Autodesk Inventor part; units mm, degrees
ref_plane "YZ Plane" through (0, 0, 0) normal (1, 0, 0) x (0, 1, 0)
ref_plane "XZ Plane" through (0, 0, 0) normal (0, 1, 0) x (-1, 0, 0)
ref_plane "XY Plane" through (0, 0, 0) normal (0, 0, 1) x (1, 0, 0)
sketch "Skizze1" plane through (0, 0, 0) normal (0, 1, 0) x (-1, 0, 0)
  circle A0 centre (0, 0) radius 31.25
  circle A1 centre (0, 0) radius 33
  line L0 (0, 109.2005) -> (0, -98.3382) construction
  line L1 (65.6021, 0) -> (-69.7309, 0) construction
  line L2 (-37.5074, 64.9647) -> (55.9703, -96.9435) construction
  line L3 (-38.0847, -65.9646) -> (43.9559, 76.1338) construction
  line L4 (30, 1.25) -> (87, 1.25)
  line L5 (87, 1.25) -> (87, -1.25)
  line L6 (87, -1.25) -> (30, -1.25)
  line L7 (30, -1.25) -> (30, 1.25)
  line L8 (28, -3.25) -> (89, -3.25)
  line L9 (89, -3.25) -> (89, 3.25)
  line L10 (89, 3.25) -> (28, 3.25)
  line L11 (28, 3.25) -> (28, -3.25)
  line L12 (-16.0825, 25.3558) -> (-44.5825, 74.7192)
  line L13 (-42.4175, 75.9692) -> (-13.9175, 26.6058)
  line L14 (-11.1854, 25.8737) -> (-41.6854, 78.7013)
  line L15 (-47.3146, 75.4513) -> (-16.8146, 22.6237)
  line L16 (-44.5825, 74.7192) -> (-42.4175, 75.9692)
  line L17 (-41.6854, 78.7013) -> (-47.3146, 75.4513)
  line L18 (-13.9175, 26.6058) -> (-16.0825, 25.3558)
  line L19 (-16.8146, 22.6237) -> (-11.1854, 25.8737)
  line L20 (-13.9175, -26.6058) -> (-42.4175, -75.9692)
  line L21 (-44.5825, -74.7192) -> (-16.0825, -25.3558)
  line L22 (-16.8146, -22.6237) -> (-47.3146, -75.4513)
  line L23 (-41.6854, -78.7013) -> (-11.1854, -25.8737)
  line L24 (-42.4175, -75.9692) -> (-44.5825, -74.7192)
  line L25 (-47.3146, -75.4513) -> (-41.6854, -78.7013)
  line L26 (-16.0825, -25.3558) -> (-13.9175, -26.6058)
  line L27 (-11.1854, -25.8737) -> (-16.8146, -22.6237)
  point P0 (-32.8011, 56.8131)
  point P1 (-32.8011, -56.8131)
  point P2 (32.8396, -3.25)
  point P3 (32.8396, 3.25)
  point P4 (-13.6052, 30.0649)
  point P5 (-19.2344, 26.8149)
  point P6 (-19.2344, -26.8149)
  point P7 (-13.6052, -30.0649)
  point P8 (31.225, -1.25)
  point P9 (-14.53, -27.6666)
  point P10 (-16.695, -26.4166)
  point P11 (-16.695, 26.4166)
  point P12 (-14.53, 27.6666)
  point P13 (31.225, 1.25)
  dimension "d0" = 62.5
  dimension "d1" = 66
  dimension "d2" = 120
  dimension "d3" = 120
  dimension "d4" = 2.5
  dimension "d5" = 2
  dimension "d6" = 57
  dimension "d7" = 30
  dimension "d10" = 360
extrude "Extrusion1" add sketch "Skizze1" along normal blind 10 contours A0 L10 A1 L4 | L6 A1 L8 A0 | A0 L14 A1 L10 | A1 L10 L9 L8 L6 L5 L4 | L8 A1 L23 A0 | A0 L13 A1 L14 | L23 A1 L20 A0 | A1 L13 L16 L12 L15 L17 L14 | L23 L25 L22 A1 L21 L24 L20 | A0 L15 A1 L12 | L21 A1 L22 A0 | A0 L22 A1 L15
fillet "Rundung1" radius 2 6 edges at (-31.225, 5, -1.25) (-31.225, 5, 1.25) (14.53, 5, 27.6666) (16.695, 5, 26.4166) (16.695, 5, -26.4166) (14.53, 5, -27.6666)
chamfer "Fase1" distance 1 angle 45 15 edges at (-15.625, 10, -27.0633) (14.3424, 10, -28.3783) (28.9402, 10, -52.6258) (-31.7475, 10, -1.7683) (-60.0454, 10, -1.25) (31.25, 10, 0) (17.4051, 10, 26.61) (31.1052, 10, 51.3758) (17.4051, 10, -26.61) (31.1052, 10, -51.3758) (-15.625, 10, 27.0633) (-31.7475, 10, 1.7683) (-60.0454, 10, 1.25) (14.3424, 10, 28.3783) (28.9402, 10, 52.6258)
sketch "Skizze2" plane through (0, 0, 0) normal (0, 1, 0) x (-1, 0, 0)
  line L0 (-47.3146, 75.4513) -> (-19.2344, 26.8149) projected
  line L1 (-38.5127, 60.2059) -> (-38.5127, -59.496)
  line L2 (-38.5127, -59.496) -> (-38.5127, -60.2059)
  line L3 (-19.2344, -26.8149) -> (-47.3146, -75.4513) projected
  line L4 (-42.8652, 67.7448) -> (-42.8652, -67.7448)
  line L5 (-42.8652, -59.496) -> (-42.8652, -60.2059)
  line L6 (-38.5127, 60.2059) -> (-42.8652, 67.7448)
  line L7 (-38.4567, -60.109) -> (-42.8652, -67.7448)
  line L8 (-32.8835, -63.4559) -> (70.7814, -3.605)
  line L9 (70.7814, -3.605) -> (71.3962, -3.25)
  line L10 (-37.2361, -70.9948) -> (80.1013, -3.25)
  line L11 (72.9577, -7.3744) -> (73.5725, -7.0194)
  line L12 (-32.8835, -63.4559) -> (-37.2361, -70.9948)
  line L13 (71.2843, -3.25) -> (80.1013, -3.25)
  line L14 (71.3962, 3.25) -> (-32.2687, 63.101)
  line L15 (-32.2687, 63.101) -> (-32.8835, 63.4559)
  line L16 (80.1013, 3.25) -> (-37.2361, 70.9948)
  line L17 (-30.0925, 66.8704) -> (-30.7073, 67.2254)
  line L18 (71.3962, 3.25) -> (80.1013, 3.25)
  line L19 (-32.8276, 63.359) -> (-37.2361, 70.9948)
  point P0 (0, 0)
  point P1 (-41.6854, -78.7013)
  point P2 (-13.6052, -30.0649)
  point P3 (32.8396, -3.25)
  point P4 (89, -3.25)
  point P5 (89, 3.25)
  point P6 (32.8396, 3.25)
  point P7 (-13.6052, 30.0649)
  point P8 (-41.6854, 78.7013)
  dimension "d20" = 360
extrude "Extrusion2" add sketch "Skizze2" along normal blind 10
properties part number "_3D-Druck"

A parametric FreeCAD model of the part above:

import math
import FreeCAD as App
import Part
import Sketcher
Q = App.Units.Quantity


def edges_at(feature, points):
    """Names of the edges that pass closest to the given points."""
    edges = feature.Shape.Edges
    near = lambda p: min(range(len(edges)), key=lambda i: edges[i].distToShape(Part.Vertex(*p))[0])
    return sorted({f"Edge{near(p) + 1}" for p in points})


def add_polygon(sketch, points):
    """Adds a closed chain of lines whose ends are joined by coincident constraints."""
    first, n = sketch.GeometryCount, len(points)
    for a, b in zip(points, points[1:] + points[:1]):
        sketch.addGeometry(Part.LineSegment(App.Vector(*a, 0), App.Vector(*b, 0)), False)
    for i in range(n):
        sketch.addConstraint(Sketcher.Constraint("Coincident", first + i, 2, first + (i + 1) % n, 1))

doc = App.newDocument("Part")
body = doc.addObject("PartDesign::Body", "Body")

# Sketch on XZ plane
sketch1 = doc.addObject("Sketcher::SketchObject", "Sketch")
body.addObject(sketch1)
sketch1.AttachmentSupport = (doc.XZ_Plane, [""])
sketch1.MapMode = "FlatFace"
sketch1.addGeometry([
    Part.ArcOfCircle(Part.Circle(App.Vector(0, 0, 0), App.Vector(0, 0, 1), 33), math.radians(66), math.radians(174)),  # 0
    Part.LineSegment(App.Vector(13.6, 30.1, 0), App.Vector(41.7, 78.7, 0)),  # 1
    Part.LineSegment(App.Vector(41.7, 78.7, 0), App.Vector(47.3, 75.5, 0)),  # 2
    Part.LineSegment(App.Vector(47.3, 75.5, 0), App.Vector(19.2, 26.8, 0)),  # 3
    Part.ArcOfCircle(Part.Circle(App.Vector(0, 0, 0), App.Vector(0, 0, 1), 33), math.radians(-54), math.radians(54)),  # 4
    Part.LineSegment(App.Vector(19.2, -26.8, 0), App.Vector(47.3, -75.5, 0)),  # 5
    Part.LineSegment(App.Vector(47.3, -75.5, 0), App.Vector(41.7, -78.7, 0)),  # 6
    Part.LineSegment(App.Vector(41.7, -78.7, 0), App.Vector(13.6, -30.1, 0)),  # 7
    Part.ArcOfCircle(Part.Circle(App.Vector(0, 0, 0), App.Vector(0, 0, 1), 33), math.radians(-174), math.radians(-66)),  # 8
    Part.LineSegment(App.Vector(-32.8, -3.2, 0), App.Vector(-89, -3.2, 0)),  # 9
    Part.LineSegment(App.Vector(-89, -3.2, 0), App.Vector(-89, 3.2, 0)),  # 10
    Part.LineSegment(App.Vector(-89, 3.2, 0), App.Vector(-32.8, 3.2, 0)),  # 11
    Part.LineSegment(App.Vector(-31.2, 1.2, 0), App.Vector(-87, 1.2, 0)),  # 12
    Part.LineSegment(App.Vector(-87, 1.2, 0), App.Vector(-87, -1.2, 0)),  # 13
    Part.LineSegment(App.Vector(-87, -1.2, 0), App.Vector(-31.2, -1.2, 0)),  # 14
    Part.ArcOfCircle(Part.Circle(App.Vector(0, 0, 0), App.Vector(0, 0, 1), 31.2), math.radians(-178), math.radians(-62)),  # 15
    Part.LineSegment(App.Vector(14.5, -27.7, 0), App.Vector(42.4, -76, 0)),  # 16
    Part.LineSegment(App.Vector(42.4, -76, 0), App.Vector(44.6, -74.7, 0)),  # 17
    Part.LineSegment(App.Vector(44.6, -74.7, 0), App.Vector(16.7, -26.4, 0)),  # 18
    Part.ArcOfCircle(Part.Circle(App.Vector(0, 0, 0), App.Vector(0, 0, 1), 31.2), math.radians(-58), math.radians(58)),  # 19
    Part.LineSegment(App.Vector(16.7, 26.4, 0), App.Vector(44.6, 74.7, 0)),  # 20
    Part.LineSegment(App.Vector(44.6, 74.7, 0), App.Vector(42.4, 76, 0)),  # 21
    Part.LineSegment(App.Vector(42.4, 76, 0), App.Vector(14.5, 27.7, 0)),  # 22
    Part.ArcOfCircle(Part.Circle(App.Vector(0, 0, 0), App.Vector(0, 0, 1), 31.2), math.radians(62), math.radians(178)),  # 23
], False)
sketch1.addConstraint([
    Sketcher.Constraint("Coincident", 0, 1, 1, 1),
    Sketcher.Constraint("Coincident", 1, 2, 2, 1),
    Sketcher.Constraint("Coincident", 2, 2, 3, 1),
    Sketcher.Constraint("Coincident", 3, 2, 4, 2),
    Sketcher.Constraint("Coincident", 4, 1, 5, 1),
    Sketcher.Constraint("Coincident", 5, 2, 6, 1),
    Sketcher.Constraint("Coincident", 6, 2, 7, 1),
    Sketcher.Constraint("Coincident", 7, 2, 8, 2),
    Sketcher.Constraint("Coincident", 8, 1, 9, 1),
    Sketcher.Constraint("Coincident", 9, 2, 10, 1),
    Sketcher.Constraint("Coincident", 10, 2, 11, 1),
    Sketcher.Constraint("Coincident", 11, 2, 0, 2),
    Sketcher.Constraint("Coincident", 12, 2, 13, 1),
    Sketcher.Constraint("Coincident", 13, 2, 14, 1),
    Sketcher.Constraint("Coincident", 14, 2, 15, 1),
    Sketcher.Constraint("Coincident", 15, 2, 16, 1),
    Sketcher.Constraint("Coincident", 16, 2, 17, 1),
    Sketcher.Constraint("Coincident", 17, 2, 18, 1),
    Sketcher.Constraint("Coincident", 18, 2, 19, 1),
    Sketcher.Constraint("Coincident", 19, 2, 20, 1),
    Sketcher.Constraint("Coincident", 20, 2, 21, 1),
    Sketcher.Constraint("Coincident", 21, 2, 22, 1),
    Sketcher.Constraint("Coincident", 22, 2, 23, 1),
    Sketcher.Constraint("Coincident", 23, 2, 12, 1),
    Sketcher.Constraint("Horizontal", 9),
    Sketcher.Constraint("Vertical", 10),
    Sketcher.Constraint("Horizontal", 11),
    Sketcher.Constraint("Horizontal", 12),
    Sketcher.Constraint("Vertical", 13),
    Sketcher.Constraint("Horizontal", 14),
    Sketcher.Constraint("Coincident", 0, 3, -1, 1),
    Sketcher.Constraint("Coincident", 4, 3, -1, 1),
    Sketcher.Constraint("Coincident", 8, 3, -1, 1),
    Sketcher.Constraint("Coincident", 15, 3, -1, 1),
    Sketcher.Constraint("Coincident", 19, 3, -1, 1),
    Sketcher.Constraint("Coincident", 23, 3, -1, 1),
    Sketcher.Constraint("Equal", 0, 4),
    Sketcher.Constraint("Equal", 4, 8),
    Sketcher.Constraint("Equal", 15, 19),
    Sketcher.Constraint("Equal", 19, 23),
    Sketcher.Constraint("Symmetric", 2, 2, 5, 2, -1),
    Sketcher.Constraint("Symmetric", 1, 2, 6, 2, -1),
    Sketcher.Constraint("Symmetric", 17, 2, 20, 2, -1),
    Sketcher.Constraint("Symmetric", 16, 2, 21, 2, -1),
    Sketcher.Constraint("Perpendicular", 1, 2),
    Sketcher.Constraint("Perpendicular", 2, 3),
    Sketcher.Constraint("Perpendicular", 5, 6),
    Sketcher.Constraint("Perpendicular", 6, 7),
    Sketcher.Constraint("Parallel", 7, 16),
    Sketcher.Constraint("Perpendicular", 16, 17),
    Sketcher.Constraint("Perpendicular", 17, 18),
    Sketcher.Constraint("Parallel", 3, 20),
    Sketcher.Constraint("Perpendicular", 21, 22),
    Sketcher.Constraint("Vertical", 8, 1, 11, 2),
    Sketcher.Constraint("Vertical", 14, 2, 23, 2),
    Sketcher.Constraint("Equal", 1, 3),
    Sketcher.Constraint("Equal", 16, 18),
    Sketcher.Constraint("Radius", 0, 33.0),
    Sketcher.Constraint("Angle", 2, Q("-29.9998 deg")),
    Sketcher.Constraint("Radius", 15, 31.25),
    Sketcher.Constraint("DistanceY", 13, 2, 13, 1, 2.5),
    Sketcher.Constraint("DistanceX", 10, 2, 12, 2, 2.0),
    Sketcher.Constraint("DistanceY", 12, 2, 10, 2, 2.0),
    Sketcher.Constraint("Distance", 17, 2.5),
    Sketcher.Constraint("DistanceX", 9, 2, -1, 1, 89.0),
    Sketcher.Constraint("Distance", 2, 6.5),
    Sketcher.Constraint("Distance", 16, 55.775),
    Sketcher.Constraint("DistanceX", 4, 1, 6, 2, 22.451),
])
pad1 = doc.addObject("PartDesign::Pad", "Pad")
body.addObject(pad1)
pad1.Profile = sketch1
pad1.Length = 10
pad1.Reversed = True
doc.recompute()

fillet = doc.addObject("PartDesign::Fillet", "Fillet")
body.addObject(fillet)
fillet.Base = (pad1, edges_at(pad1, [
    (-31.225, 5, -1.25),
    (-31.225, 5, 1.25),
    (14.53, 5, 27.667),
    (16.695, 5, 26.417),
    (16.695, 5, -26.417),
    (14.53, 5, -27.667),
]))
fillet.Radius = 2
doc.recompute()

chamfer = doc.addObject("PartDesign::Chamfer", "Chamfer")
body.addObject(chamfer)
chamfer.Base = (fillet, edges_at(fillet, [
    (-15.625, 10, -27.063),
    (14.342, 10, -28.378),
    (28.94, 10, -52.626),
    (-31.747, 10, -1.768),
    (-60.045, 10, -1.25),
    (31.25, 10, 0),
    (17.405, 10, 26.61),
    (31.105, 10, 51.376),
    (17.405, 10, -26.61),
    (31.105, 10, -51.376),
    (-15.625, 10, 27.063),
    (-31.747, 10, 1.768),
    (-60.045, 10, 1.25),
    (14.342, 10, 28.378),
    (28.94, 10, 52.626),
]))
chamfer.Size = 1

# Sketch on XZ plane
sketch2 = doc.addObject("Sketcher::SketchObject", "Sketch001")
body.addObject(sketch2)
sketch2.AttachmentSupport = (doc.XZ_Plane, [""])
sketch2.MapMode = "FlatFace"
add_polygon(sketch2, [(38.5, 60.2), (42.9, 67.7), (42.9, -67.7), (38.5, -60.2)])  # lines 0-3
add_polygon(sketch2, [(-70.8, -3.6), (32.9, -63.5), (37.2, -71), (-73, -7.4), (-73.6, -7), (-80.1, -3.2), (-71.4, -3.2)])  # lines 4-10
add_polygon(sketch2, [(32.3, 63.1), (-71.4, 3.2), (-80.1, 3.2), (30.1, 66.9), (30.7, 67.2), (37.2, 71), (32.9, 63.5)])  # lines 11-17
sketch2.addConstraint([
    Sketcher.Constraint("Vertical", 1),
    Sketcher.Constraint("Vertical", 3),
    Sketcher.Constraint("Horizontal", 9),
    Sketcher.Constraint("Horizontal", 12),
    Sketcher.Constraint("Symmetric", 9, 2, 11, 2, -1),
    Sketcher.Constraint("Symmetric", 5, 2, 15, 2, -1),
    Sketcher.Constraint("Symmetric", 4, 2, 16, 2, -1),
    Sketcher.Constraint("Perpendicular", 0, 4),
    Sketcher.Constraint("Parallel", 2, 5),
    Sketcher.Constraint("Parallel", 4, 6),
    Sketcher.Constraint("Parallel", 6, 7),
    Sketcher.Constraint("Parallel", 7, 8),
    Sketcher.Constraint("Parallel", 8, 10),
    Sketcher.Constraint("Perpendicular", 5, 11),
    Sketcher.Constraint("Parallel", 11, 13),
    Sketcher.Constraint("Parallel", 13, 14),
    Sketcher.Constraint("Parallel", 14, 15),
    Sketcher.Constraint("Perpendicular", 8, 16),
    Sketcher.Constraint("Equal", 2, 5),
    Sketcher.Constraint("Equal", 7, 10),
    Sketcher.Constraint("Equal", 4, 11),
    Sketcher.Constraint("Equal", 6, 13),
    Sketcher.Constraint("Equal", 10, 14),
    Sketcher.Constraint("Angle", 0, Q("60 deg")),
    Sketcher.Constraint("DistanceY", 9, 2, 11, 2, 6.5),
    Sketcher.Constraint("Distance", 7, 0.71),
    Sketcher.Constraint("DistanceX", 9, 1, 9, 2, 8.705),
    Sketcher.Constraint("DistanceY", 4, 2, 2, 2, 3.25),
    Sketcher.Constraint("DistanceY", 0, 2, 15, 2, 3.25),
    Sketcher.Constraint("Distance", 4, 119.702),
    Sketcher.Constraint("DistanceX", -1, 1, 5, 2, 37.236),
    Sketcher.Constraint("DistanceX", 5, 2, 1, 2, 5.629),
    Sketcher.Constraint("DistanceX", 6, 2, 1, 2, 115.823),
])
pad2 = doc.addObject("PartDesign::Pad", "Pad001")
body.addObject(pad2)
pad2.Profile = sketch2
pad2.Length = 10
pad2.Reversed = True

doc.recompute()
